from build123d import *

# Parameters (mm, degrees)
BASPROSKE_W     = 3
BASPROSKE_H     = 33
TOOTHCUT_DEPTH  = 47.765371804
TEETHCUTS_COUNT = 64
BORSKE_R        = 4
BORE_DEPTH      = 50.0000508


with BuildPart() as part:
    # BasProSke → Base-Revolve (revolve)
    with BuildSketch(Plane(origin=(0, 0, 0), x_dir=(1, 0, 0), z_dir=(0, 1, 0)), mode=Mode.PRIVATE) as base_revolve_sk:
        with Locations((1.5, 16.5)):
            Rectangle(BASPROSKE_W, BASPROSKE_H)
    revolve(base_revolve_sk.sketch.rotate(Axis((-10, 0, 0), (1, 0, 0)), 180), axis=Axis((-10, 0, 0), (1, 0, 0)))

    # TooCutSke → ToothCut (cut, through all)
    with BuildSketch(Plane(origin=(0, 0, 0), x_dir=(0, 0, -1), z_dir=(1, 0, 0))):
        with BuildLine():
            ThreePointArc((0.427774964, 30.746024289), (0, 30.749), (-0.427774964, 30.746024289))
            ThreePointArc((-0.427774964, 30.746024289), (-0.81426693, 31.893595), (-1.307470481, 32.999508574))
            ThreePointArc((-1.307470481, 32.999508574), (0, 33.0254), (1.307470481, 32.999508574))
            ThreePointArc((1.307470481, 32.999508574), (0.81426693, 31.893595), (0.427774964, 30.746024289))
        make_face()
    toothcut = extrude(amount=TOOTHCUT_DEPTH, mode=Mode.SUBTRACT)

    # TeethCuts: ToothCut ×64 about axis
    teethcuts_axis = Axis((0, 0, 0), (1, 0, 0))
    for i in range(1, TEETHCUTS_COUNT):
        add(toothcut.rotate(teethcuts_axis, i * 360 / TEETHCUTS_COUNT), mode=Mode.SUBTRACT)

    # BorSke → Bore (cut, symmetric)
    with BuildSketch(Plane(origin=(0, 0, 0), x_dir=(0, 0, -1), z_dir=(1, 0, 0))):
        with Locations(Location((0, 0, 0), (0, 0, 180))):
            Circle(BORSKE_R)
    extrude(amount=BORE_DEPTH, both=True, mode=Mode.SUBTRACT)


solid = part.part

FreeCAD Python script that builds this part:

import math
import FreeCAD as App
import Part
import Sketcher

doc = App.newDocument("Part")
body = doc.addObject("PartDesign::Body", "Body")

# Sketch on XZ plane
sketch1 = body.newObject("Sketcher::SketchObject", "Sketch")
sketch1.AttachmentSupport = (doc.getObject("XZ_Plane"), [""])
sketch1.MapMode = "FlatFace"
sketch1.addGeometry([
    Part.LineSegment(App.Vector(0, -33, 0), App.Vector(0, 0, 0)),
    Part.LineSegment(App.Vector(0, 0, 0), App.Vector(3, 0, 0)),
    Part.LineSegment(App.Vector(3, 0, 0), App.Vector(3, -33, 0)),
    Part.LineSegment(App.Vector(3, -33, 0), App.Vector(0, -33, 0)),
], False)
sketch1.addConstraint([
    Sketcher.Constraint("Coincident", 0, 2, 1, 1),
    Sketcher.Constraint("Coincident", 1, 2, 2, 1),
    Sketcher.Constraint("Coincident", 2, 2, 3, 1),
    Sketcher.Constraint("Coincident", 3, 2, 0, 1),
    Sketcher.Constraint("Vertical", 0),
    Sketcher.Constraint("Horizontal", 1),
    Sketcher.Constraint("Vertical", 2),
    Sketcher.Constraint("Horizontal", 3),
    Sketcher.Constraint("Coincident", 0, 2, -1, 1),
    Sketcher.Constraint("DistanceX", 1, 1, 1, 2, 3.0),
    Sketcher.Constraint("DistanceY", 0, 1, 0, 2, 33.0),
])
revolution = body.newObject("PartDesign::Revolution", "Revolution")
revolution.Profile = sketch1
revolution.ReferenceAxis = (sketch1, ["H_Axis"])
revolution.Angle = 360

# Sketch on YZ plane
sketch2 = body.newObject("Sketcher::SketchObject", "Sketch001")
sketch2.AttachmentSupport = (doc.getObject("YZ_Plane"), [""])
sketch2.MapMode = "FlatFace"
sketch2.addGeometry([
    Part.ArcOfCircle(Part.Circle(App.Vector(0, 0, 0), App.Vector(0, 0, 1), 30.7), math.radians(-0.8), math.radians(0.8)),
    Part.ArcOfCircle(Part.Circle(App.Vector(27.2, -12.7, 0), App.Vector(0, 0, 1), 12.8), math.radians(63.25), math.radians(74.1)),
    Part.ArcOfCircle(Part.Circle(App.Vector(0, 0, 0), App.Vector(0, 0, 1), 33), math.radians(-2.27), math.radians(2.27)),
    Part.ArcOfCircle(Part.Circle(App.Vector(27.2, 12.7, 0), App.Vector(0, 0, 1), 12.8), math.radians(-74.1), math.radians(-63.25)),
], False)
sketch2.addConstraint([
    Sketcher.Constraint("Coincident", 0, 1, 1, 2),
    Sketcher.Constraint("Coincident", 1, 1, 2, 1),
    Sketcher.Constraint("Coincident", 2, 2, 3, 2),
    Sketcher.Constraint("Coincident", 3, 1, 0, 2),
    Sketcher.Constraint("Coincident", 0, 3, -1, 1),
    Sketcher.Constraint("Coincident", 2, 3, -1, 1),
    Sketcher.Constraint("Equal", 1, 3),
    Sketcher.Constraint("Symmetric", 1, 3, 3, 3, -1),
    Sketcher.Constraint("Radius", 1, 12.8),
    Sketcher.Constraint("Radius", 0, 30.749),
    Sketcher.Constraint("Radius", 2, 33.0254),
    Sketcher.Constraint("DistanceX", -1, 1, 1, 1, 32.999509),
    Sketcher.Constraint("DistanceX", 1, 3, 0, 1, 3.507091),
])
pocket1 = body.newObject("PartDesign::Pocket", "Pocket")
pocket1.Profile = sketch2
pocket1.Type = "ThroughAll"
pocket1.Reversed = True
doc.recompute()

polarpattern = body.newObject("PartDesign::PolarPattern", "PolarPattern")
polarpattern.Originals = [pocket1]
polarpattern.Axis = (doc.getObject("X_Axis"), [""])
polarpattern.Angle = 360
polarpattern.Occurrences = 64
body.Tip = polarpattern

# Sketch on YZ plane
sketch3 = body.newObject("Sketcher::SketchObject", "Sketch002")
sketch3.AttachmentSupport = (doc.getObject("YZ_Plane"), [""])
sketch3.MapMode = "FlatFace"
sketch3.addGeometry(Part.Circle(App.Vector(0, 0, 0), App.Vector(0, 0, 1), 4), False)
sketch3.addConstraint([
    Sketcher.Constraint("Coincident", 0, 3, -1, 1),
    Sketcher.Constraint("Diameter", 0, 8.0),
])
pocket2 = body.newObject("PartDesign::Pocket", "Pocket001")
pocket2.Profile = sketch3
pocket2.Length = 100.000102
pocket2.Midplane = True

doc.recompute()
